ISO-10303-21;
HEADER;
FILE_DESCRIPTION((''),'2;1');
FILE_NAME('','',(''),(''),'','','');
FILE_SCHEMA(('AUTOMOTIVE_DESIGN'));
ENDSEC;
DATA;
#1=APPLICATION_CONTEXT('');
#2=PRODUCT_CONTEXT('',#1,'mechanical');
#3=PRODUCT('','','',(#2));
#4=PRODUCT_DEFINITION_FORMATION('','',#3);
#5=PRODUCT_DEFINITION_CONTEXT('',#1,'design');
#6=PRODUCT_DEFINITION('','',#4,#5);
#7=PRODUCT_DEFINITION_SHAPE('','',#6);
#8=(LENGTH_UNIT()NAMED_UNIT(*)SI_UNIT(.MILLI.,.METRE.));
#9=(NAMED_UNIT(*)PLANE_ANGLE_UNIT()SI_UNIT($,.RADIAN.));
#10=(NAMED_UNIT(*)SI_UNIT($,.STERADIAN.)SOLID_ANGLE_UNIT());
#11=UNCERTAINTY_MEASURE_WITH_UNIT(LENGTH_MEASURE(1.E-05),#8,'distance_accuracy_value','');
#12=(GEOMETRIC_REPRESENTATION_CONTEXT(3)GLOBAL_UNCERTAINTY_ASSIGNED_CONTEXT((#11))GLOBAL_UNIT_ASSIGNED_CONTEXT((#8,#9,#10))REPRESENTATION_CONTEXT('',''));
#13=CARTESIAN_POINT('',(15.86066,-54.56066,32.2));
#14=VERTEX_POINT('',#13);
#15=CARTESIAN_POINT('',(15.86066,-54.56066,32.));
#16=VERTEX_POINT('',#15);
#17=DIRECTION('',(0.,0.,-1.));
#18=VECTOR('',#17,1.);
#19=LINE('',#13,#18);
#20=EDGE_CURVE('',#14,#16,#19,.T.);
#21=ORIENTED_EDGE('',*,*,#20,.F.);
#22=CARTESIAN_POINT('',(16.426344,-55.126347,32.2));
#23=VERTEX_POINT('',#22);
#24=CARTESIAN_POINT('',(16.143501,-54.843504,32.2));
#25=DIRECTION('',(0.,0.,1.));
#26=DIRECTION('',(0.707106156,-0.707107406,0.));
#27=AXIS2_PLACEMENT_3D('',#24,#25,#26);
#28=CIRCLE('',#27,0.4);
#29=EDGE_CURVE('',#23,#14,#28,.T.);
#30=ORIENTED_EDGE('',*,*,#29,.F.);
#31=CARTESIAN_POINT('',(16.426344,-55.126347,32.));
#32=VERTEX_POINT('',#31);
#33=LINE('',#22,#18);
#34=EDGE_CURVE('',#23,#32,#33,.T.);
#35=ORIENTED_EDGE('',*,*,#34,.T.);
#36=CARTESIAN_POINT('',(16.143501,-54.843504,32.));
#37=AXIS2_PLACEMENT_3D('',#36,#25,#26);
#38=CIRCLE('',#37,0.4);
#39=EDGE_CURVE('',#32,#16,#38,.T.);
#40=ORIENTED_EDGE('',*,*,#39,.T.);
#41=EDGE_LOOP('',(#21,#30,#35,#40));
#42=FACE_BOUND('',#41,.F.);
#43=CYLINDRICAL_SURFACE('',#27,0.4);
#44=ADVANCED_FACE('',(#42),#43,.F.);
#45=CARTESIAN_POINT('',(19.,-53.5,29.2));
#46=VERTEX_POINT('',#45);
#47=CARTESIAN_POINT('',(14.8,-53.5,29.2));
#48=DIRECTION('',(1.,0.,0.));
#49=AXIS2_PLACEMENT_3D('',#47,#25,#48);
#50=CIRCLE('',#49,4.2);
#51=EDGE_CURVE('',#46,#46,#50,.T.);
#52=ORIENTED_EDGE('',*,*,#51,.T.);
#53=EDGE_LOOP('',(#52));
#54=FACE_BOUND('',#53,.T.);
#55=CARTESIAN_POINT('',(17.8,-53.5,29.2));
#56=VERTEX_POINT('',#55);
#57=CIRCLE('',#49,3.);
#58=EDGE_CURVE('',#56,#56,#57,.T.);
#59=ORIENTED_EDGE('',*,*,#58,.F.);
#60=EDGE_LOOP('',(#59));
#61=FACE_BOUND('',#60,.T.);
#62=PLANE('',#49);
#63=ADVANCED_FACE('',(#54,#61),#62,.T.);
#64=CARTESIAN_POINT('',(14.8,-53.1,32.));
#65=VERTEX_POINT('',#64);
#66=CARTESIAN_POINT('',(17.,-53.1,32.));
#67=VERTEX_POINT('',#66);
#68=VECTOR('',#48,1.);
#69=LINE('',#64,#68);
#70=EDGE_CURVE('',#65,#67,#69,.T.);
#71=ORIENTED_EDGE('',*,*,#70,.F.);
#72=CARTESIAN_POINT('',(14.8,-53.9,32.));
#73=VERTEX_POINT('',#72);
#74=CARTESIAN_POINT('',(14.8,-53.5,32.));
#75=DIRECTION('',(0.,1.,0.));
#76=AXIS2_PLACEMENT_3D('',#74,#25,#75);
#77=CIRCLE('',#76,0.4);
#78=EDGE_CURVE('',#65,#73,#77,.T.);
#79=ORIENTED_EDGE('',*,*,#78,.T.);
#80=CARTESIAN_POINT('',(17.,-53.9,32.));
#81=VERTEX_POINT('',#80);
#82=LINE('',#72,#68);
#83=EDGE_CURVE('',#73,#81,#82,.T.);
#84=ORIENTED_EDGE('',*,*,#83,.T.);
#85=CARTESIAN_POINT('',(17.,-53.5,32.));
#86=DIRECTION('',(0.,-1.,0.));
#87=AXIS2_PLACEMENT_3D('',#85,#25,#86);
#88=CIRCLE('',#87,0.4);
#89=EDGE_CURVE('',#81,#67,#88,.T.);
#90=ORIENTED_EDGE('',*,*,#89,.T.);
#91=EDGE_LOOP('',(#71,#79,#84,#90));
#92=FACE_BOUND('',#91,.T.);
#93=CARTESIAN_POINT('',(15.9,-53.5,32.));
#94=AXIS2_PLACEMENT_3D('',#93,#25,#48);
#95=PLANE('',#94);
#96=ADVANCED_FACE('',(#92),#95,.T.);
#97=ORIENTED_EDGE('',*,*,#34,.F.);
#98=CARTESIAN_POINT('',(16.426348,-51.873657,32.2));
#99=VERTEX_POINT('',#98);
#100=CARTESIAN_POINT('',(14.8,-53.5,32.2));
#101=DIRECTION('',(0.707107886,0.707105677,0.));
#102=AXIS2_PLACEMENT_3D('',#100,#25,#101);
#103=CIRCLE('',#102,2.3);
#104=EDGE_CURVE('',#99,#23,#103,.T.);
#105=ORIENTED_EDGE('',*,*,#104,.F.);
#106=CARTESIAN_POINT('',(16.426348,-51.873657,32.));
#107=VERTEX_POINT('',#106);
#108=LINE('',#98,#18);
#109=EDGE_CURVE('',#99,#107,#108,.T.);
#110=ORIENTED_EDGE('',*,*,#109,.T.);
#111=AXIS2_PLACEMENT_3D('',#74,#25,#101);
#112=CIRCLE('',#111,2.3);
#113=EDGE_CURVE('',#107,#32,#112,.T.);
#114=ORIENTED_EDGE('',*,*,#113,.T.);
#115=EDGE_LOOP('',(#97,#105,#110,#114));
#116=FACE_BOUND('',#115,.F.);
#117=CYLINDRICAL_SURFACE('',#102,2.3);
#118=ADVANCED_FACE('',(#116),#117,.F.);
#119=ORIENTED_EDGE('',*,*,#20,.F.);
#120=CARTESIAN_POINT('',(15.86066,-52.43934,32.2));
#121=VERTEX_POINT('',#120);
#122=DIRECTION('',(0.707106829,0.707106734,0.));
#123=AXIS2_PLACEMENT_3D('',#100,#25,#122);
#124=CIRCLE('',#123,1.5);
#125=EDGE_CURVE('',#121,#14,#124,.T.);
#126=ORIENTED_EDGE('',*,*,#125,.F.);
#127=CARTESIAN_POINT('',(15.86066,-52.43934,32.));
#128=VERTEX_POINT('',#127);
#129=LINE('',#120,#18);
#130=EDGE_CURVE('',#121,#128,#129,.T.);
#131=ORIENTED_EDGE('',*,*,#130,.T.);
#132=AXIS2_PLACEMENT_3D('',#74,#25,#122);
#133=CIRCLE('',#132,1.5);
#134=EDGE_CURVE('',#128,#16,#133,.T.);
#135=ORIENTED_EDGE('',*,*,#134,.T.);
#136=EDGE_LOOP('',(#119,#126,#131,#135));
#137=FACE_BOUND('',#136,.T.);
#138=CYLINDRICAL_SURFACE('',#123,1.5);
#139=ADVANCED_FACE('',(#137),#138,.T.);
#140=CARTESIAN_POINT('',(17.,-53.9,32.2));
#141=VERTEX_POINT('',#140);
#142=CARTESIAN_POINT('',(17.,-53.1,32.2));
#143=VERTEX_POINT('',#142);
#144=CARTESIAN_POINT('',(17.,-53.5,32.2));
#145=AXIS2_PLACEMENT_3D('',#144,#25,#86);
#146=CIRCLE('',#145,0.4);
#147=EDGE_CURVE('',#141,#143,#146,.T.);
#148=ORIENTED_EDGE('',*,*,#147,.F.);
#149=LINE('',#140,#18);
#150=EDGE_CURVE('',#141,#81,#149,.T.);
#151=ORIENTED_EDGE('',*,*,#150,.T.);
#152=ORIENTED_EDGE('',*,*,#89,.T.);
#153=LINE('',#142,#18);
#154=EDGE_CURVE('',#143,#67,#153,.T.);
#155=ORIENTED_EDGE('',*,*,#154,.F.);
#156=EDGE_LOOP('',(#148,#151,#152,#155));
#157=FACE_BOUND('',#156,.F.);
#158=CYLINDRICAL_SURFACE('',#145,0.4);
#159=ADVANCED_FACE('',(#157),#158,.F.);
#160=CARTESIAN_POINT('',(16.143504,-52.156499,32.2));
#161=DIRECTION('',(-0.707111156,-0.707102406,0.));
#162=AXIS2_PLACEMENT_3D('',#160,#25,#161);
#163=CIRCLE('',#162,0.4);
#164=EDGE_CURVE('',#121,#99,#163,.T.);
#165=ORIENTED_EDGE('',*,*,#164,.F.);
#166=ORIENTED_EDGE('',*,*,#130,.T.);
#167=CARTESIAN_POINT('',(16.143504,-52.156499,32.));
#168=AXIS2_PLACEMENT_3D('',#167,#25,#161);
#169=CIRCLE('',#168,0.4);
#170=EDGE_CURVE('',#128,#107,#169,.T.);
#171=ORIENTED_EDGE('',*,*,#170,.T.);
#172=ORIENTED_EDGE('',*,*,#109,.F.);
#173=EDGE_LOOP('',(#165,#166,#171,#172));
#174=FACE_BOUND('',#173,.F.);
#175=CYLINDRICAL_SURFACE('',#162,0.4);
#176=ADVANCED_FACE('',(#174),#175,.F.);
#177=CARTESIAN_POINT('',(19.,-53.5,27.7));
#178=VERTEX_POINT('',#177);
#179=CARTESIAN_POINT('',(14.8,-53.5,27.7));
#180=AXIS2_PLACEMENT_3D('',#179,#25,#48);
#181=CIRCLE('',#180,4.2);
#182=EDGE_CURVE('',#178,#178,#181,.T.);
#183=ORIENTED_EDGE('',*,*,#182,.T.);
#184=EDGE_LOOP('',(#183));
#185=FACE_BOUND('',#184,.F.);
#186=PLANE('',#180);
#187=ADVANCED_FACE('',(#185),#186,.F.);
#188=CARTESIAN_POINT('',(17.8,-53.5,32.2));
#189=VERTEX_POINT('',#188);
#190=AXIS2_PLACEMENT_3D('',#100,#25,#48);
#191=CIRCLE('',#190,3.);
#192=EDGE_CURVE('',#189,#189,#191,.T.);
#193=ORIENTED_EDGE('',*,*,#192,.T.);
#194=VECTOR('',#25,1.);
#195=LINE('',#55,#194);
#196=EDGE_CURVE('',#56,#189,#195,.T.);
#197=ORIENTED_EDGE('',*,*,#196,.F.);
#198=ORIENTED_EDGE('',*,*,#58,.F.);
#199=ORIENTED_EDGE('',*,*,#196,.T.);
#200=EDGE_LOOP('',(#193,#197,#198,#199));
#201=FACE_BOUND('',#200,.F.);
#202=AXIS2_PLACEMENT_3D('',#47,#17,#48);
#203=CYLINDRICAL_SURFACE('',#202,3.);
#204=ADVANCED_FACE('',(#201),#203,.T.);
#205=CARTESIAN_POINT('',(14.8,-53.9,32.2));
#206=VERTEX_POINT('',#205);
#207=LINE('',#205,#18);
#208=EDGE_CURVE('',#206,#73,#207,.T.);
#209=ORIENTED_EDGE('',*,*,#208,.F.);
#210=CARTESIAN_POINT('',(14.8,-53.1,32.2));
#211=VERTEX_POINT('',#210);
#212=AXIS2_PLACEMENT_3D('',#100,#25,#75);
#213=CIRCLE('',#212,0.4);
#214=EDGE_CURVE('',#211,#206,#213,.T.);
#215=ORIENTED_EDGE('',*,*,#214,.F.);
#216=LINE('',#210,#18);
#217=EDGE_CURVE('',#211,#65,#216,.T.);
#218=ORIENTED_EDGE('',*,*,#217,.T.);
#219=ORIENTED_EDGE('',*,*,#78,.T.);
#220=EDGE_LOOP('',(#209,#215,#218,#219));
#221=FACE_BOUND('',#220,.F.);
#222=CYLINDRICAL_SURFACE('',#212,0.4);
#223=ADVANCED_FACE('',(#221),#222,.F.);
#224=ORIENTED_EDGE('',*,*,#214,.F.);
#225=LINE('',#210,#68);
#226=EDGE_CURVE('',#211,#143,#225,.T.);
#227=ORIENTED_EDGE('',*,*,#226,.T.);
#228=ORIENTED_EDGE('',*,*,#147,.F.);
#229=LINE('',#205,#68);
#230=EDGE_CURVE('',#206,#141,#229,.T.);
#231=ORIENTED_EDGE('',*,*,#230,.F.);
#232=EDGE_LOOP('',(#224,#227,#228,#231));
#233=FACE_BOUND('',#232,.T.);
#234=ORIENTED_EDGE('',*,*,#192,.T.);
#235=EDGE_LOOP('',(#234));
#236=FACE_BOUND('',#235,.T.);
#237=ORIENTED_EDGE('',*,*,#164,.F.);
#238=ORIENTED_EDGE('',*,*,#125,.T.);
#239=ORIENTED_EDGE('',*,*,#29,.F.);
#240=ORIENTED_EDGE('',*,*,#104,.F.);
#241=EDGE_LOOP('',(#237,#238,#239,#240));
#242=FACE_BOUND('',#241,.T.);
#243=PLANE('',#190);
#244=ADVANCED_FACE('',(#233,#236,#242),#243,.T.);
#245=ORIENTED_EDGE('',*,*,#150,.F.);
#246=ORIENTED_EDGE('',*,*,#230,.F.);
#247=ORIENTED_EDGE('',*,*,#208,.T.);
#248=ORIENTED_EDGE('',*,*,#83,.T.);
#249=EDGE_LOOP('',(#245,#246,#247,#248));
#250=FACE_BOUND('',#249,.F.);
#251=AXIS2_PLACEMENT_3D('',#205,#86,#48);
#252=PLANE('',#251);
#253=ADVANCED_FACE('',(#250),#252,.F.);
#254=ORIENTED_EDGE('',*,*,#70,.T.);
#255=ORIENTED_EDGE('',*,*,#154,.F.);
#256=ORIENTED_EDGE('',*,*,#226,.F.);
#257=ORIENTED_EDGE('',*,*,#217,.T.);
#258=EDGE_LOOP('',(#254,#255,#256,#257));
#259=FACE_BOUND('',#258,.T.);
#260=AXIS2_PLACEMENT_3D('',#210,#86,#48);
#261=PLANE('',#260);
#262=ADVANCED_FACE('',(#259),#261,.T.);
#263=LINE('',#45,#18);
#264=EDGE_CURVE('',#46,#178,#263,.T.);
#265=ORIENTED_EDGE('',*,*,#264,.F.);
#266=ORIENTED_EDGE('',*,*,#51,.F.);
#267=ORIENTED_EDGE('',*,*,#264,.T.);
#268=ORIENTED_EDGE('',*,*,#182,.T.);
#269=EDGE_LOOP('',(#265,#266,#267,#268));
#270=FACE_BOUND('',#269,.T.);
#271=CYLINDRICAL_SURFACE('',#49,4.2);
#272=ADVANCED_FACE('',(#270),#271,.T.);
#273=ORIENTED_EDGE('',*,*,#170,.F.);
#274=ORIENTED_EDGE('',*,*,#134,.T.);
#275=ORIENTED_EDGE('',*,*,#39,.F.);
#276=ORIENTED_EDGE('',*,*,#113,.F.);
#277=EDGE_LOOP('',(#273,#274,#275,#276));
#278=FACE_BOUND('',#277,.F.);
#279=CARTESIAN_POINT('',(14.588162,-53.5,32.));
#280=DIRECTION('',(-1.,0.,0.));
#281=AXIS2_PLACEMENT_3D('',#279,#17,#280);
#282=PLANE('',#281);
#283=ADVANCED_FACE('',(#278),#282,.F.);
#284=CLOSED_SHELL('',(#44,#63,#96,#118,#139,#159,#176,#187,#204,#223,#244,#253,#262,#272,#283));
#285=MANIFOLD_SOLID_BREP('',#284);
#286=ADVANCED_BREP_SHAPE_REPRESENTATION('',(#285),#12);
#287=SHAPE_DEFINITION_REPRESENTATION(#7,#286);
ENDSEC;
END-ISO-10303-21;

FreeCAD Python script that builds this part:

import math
import FreeCAD as App
import Part
import Sketcher
from FreeCAD import Vector

doc = App.newDocument("Part")
body = doc.addObject("PartDesign::Body", "Body")

# Sketch on XY plane
sketch1 = body.newObject("Sketcher::SketchObject", "Sketch")
sketch1.AttachmentSupport = (doc.getObject("XY_Plane"), [""])
sketch1.MapMode = "FlatFace"
sketch1.AttachmentOffset = App.Placement(Vector(0, 0, 29.2), App.Rotation())
sketch1.addGeometry(Part.Circle(Vector(14.8, -53.5, 0), Vector(0, 0, 1), 4.2), False)
sketch1.addConstraint([
    Sketcher.Constraint("Diameter", 0, 8.4),
    Sketcher.Constraint("DistanceX", -1, 1, 0, 3, 14.8),
    Sketcher.Constraint("DistanceY", 0, 3, -1, 1, 53.5),
])
pad1 = body.newObject("PartDesign::Pad", "Pad")
pad1.Profile = sketch1
pad1.Length = 1.5
pad1.Reversed = True

# Sketch on XY plane
sketch2 = body.newObject("Sketcher::SketchObject", "Sketch001")
sketch2.AttachmentSupport = (doc.getObject("XY_Plane"), [""])
sketch2.MapMode = "FlatFace"
sketch2.AttachmentOffset = App.Placement(Vector(0, 0, 29.2), App.Rotation())
sketch2.addGeometry(Part.Circle(Vector(14.8, -53.5, 0), Vector(0, 0, 1), 3), False)
sketch2.addConstraint([
    Sketcher.Constraint("Diameter", 0, 6.0),
    Sketcher.Constraint("DistanceX", -1, 1, 0, 3, 14.8),
    Sketcher.Constraint("DistanceY", 0, 3, -1, 1, 53.5),
])
pad2 = body.newObject("PartDesign::Pad", "Pad001")
pad2.Profile = sketch2
pad2.Length = 3

# Sketch on XY plane
sketch3 = body.newObject("Sketcher::SketchObject", "Sketch002")
sketch3.AttachmentSupport = (doc.getObject("XY_Plane"), [""])
sketch3.MapMode = "FlatFace"
sketch3.AttachmentOffset = App.Placement(Vector(0, 0, 32.2), App.Rotation())
sketch3.addGeometry([
    Part.ArcOfCircle(Part.Circle(Vector(14.8, -53.5, 0), Vector(0, 0, 1), 1.5), math.radians(45), math.radians(315)),  # 0
    Part.ArcOfCircle(Part.Circle(Vector(16.14, -52.16, 0), Vector(0, 0, 1), 0.4), math.radians(-135), math.radians(45)),  # 1
    Part.ArcOfCircle(Part.Circle(Vector(14.8, -53.5, 0), Vector(0, 0, 1), 2.3), math.radians(45), math.radians(315)),  # 2
    Part.ArcOfCircle(Part.Circle(Vector(16.14, -54.84, 0), Vector(0, 0, 1), 0.4), math.radians(-45), math.radians(135)),  # 3
    Part.ArcOfCircle(Part.Circle(Vector(14.8, -53.5, 0), Vector(0, 0, 1), 0.4), math.radians(90), math.radians(270)),  # 4
    Part.LineSegment(Vector(14.8, -53.9, 0), Vector(17, -53.9, 0)),  # 5
    Part.ArcOfCircle(Part.Circle(Vector(17, -53.5, 0), Vector(0, 0, 1), 0.4), math.radians(-90), math.radians(90)),  # 6
    Part.LineSegment(Vector(17, -53.1, 0), Vector(14.8, -53.1, 0)),  # 7
], False)
sketch3.addConstraint([
    Sketcher.Constraint("Coincident", 0, 1, 1, 1),
    Sketcher.Constraint("Tangent", 1, 2, 2, 1),
    Sketcher.Constraint("Tangent", 2, 2, 3, 1),
    Sketcher.Constraint("Coincident", 3, 2, 0, 2),
    Sketcher.Constraint("Tangent", 4, 2, 5, 1),
    Sketcher.Constraint("Tangent", 5, 2, 6, 1),
    Sketcher.Constraint("Tangent", 6, 2, 7, 1),
    Sketcher.Constraint("Tangent", 7, 2, 4, 1),
    Sketcher.Constraint("Horizontal", 5),
    Sketcher.Constraint("Horizontal", 7),
    Sketcher.Constraint("Coincident", 2, 3, 0, 3),
    Sketcher.Constraint("Coincident", 4, 3, 0, 3),
    Sketcher.Constraint("Equal", 3, 4),
    Sketcher.Constraint("Vertical", 0, 1, 3, 2),
    Sketcher.Constraint("Radius", 0, 1.5),
    Sketcher.Constraint("Radius", 1, 0.4),
    Sketcher.Constraint("DistanceX", 5, 1, 5, 2, 2.2),
    Sketcher.Constraint("DistanceX", -1, 1, 6, 3, 17.0),
    Sketcher.Constraint("DistanceY", 0, 3, -1, 1, 53.5),
    Sketcher.Constraint("DistanceY", 1, 3, -1, 1, 52.156499),
    Sketcher.Constraint("DistanceX", -1, 1, 3, 3, 16.143501),
    Sketcher.Constraint("DistanceX", -1, 1, 0, 1, 15.86066),
])
pocket1 = body.newObject("PartDesign::Pocket", "Pocket")
pocket1.Profile = sketch3
pocket1.Length = 0.2

doc.recompute()
